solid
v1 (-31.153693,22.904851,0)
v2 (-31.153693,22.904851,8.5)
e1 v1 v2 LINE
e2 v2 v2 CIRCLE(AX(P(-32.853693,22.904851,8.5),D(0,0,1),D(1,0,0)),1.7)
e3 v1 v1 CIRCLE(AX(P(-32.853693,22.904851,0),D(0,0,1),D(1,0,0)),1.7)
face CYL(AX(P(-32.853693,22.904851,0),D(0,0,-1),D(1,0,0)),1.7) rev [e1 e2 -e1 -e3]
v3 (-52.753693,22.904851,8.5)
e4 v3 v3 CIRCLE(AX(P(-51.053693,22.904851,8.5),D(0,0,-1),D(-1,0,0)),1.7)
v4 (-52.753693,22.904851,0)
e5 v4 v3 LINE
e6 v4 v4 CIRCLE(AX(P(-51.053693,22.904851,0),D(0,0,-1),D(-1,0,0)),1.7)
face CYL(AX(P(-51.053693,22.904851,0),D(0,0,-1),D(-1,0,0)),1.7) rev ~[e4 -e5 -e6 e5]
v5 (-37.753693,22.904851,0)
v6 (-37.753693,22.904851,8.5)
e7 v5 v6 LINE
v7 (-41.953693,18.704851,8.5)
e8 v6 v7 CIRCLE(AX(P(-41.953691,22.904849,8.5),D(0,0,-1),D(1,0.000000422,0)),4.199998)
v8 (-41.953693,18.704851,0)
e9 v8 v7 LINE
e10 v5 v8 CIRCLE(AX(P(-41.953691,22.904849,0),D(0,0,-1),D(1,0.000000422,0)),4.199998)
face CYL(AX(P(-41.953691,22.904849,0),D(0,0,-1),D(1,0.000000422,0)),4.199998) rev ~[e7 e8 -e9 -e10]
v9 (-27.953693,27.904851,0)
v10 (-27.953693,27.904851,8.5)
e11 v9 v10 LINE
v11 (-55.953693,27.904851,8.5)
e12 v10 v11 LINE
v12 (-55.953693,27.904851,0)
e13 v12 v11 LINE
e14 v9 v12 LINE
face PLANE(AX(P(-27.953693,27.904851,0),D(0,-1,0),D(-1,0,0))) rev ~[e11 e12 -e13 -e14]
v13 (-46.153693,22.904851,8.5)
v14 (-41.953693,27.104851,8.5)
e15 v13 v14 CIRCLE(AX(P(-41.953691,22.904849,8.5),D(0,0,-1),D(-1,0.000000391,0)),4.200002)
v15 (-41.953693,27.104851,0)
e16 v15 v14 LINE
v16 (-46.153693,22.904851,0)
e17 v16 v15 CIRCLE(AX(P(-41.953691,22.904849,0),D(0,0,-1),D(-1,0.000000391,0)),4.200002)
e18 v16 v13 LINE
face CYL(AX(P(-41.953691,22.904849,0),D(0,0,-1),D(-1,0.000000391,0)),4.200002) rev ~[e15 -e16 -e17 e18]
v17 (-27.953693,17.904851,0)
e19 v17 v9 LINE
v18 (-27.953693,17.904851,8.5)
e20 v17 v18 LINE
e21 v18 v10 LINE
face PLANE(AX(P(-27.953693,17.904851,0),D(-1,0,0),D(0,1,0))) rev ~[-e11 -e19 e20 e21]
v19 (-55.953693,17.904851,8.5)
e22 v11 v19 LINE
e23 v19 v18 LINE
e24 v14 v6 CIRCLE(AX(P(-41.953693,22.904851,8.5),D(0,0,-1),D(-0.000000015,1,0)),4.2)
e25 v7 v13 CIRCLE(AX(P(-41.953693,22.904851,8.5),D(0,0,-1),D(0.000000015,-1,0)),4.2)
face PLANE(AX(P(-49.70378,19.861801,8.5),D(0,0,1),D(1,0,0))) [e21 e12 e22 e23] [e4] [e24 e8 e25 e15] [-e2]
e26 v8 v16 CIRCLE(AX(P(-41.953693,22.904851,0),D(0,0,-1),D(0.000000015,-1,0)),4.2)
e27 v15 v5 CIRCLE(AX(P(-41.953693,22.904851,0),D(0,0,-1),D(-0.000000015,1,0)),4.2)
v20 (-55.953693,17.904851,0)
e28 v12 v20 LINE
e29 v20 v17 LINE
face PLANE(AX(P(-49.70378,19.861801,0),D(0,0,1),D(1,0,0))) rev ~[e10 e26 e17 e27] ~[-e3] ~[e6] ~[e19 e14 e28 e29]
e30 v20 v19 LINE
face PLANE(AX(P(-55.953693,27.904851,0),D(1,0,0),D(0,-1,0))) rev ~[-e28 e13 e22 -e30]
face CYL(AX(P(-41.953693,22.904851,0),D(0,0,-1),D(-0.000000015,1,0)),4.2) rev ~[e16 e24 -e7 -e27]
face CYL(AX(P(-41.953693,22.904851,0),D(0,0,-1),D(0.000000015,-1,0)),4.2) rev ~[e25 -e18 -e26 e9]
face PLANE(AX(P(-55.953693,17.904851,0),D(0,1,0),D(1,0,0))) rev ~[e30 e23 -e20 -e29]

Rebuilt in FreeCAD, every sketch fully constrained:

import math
import FreeCAD as App
import Part
import Sketcher
from FreeCAD import Vector

doc = App.newDocument("Part")
body = doc.addObject("PartDesign::Body", "Body")

# Sketch on XY plane
sketch1 = body.newObject("Sketcher::SketchObject", "Sketch")
sketch1.AttachmentSupport = (doc.getObject("XY_Plane"), [""])
sketch1.MapMode = "FlatFace"
sketch1.addGeometry(Part.LineSegment(Vector(-56, 27.9, 0), Vector(-56, 17.9, 0)), False)
sketch1.addGeometry(Part.LineSegment(Vector(-56, 17.9, 0), Vector(-28, 17.9, 0)), False)
sketch1.addGeometry(Part.LineSegment(Vector(-28, 17.9, 0), Vector(-28, 27.9, 0)), False)
sketch1.addGeometry(Part.LineSegment(Vector(-28, 27.9, 0), Vector(-56, 27.9, 0)), False)
sketch1.addGeometry(Part.Circle(Vector(-51.1, 22.9, 0), Vector(0, 0, 1), 1.7), False)
sketch1.addGeometry(Part.ArcOfCircle(Part.Circle(Vector(-42, 22.9, 0), Vector(0, 0, 1), 4.2), math.radians(180), math.radians(270)), False)
sketch1.addGeometry(Part.ArcOfCircle(Part.Circle(Vector(-42, 22.9, 0), Vector(0, 0, 1), 4.2), math.radians(90), math.radians(180)), False)
sketch1.addGeometry(Part.ArcOfCircle(Part.Circle(Vector(-42, 22.9, 0), Vector(0, 0, 1), 4.2), math.radians(0), math.radians(90)), False)
sketch1.addGeometry(Part.ArcOfCircle(Part.Circle(Vector(-42, 22.9, 0), Vector(0, 0, 1), 4.2), math.radians(-90), math.radians(0)), False)
sketch1.addGeometry(Part.Circle(Vector(-32.9, 22.9, 0), Vector(0, 0, 1), 1.7), False)
sketch1.addConstraint(Sketcher.Constraint("Coincident", 0, 2, 1, 1))
sketch1.addConstraint(Sketcher.Constraint("Coincident", 1, 2, 2, 1))
sketch1.addConstraint(Sketcher.Constraint("Coincident", 2, 2, 3, 1))
sketch1.addConstraint(Sketcher.Constraint("Coincident", 3, 2, 0, 1))
sketch1.addConstraint(Sketcher.Constraint("Tangent", 5, 1, 6, 2))
sketch1.addConstraint(Sketcher.Constraint("Tangent", 6, 1, 7, 2))
sketch1.addConstraint(Sketcher.Constraint("Tangent", 7, 1, 8, 2))
sketch1.addConstraint(Sketcher.Constraint("Tangent", 8, 1, 5, 2))
sketch1.addConstraint(Sketcher.Constraint("Vertical", 0))
sketch1.addConstraint(Sketcher.Constraint("Horizontal", 1))
sketch1.addConstraint(Sketcher.Constraint("Vertical", 2))
sketch1.addConstraint(Sketcher.Constraint("Horizontal", 3))
sketch1.addConstraint(Sketcher.Constraint("Equal", 5, 6))
sketch1.addConstraint(Sketcher.Constraint("Equal", 4, 9))
sketch1.addConstraint(Sketcher.Constraint("Horizontal", 4, 3, 5, 3))
sketch1.addConstraint(Sketcher.Constraint("Horizontal", 8, 3, 9, 3))
sketch1.addConstraint(Sketcher.Constraint("Horizontal", 9, 3, 5, 1))
sketch1.addConstraint(Sketcher.Constraint("Horizontal", 5, 1, 7, 1))
sketch1.addConstraint(Sketcher.Constraint("Vertical", 8, 3, 6, 1))
sketch1.addConstraint(Sketcher.Constraint("Vertical", 6, 1, 8, 1))
sketch1.addConstraint(Sketcher.Constraint("Diameter", 4, 3.4))
sketch1.addConstraint(Sketcher.Constraint("Radius", 5, 4.2))
sketch1.addConstraint(Sketcher.Constraint("DistanceX", 1, 1, 1, 2, 28.0))
sketch1.addConstraint(Sketcher.Constraint("DistanceY", 0, 2, 0, 1, 10.0))
sketch1.addConstraint(Sketcher.Constraint("DistanceY", 0, 2, 4, 3, 5.0))
sketch1.addConstraint(Sketcher.Constraint("DistanceX", 0, 2, 5, 3, 14.0))
sketch1.addConstraint(Sketcher.Constraint("DistanceX", 4, 3, 5, 3, 9.1))
sketch1.addConstraint(Sketcher.Constraint("DistanceX", 8, 3, 9, 3, 9.099998))
sketch1.addConstraint(Sketcher.Constraint("DistanceY", -1, 1, 4, 3, 22.904851))
sketch1.addConstraint(Sketcher.Constraint("DistanceX", 6, 3, -1, 1, 41.953691))
pad1 = body.newObject("PartDesign::Pad", "Pad")
pad1.Profile = sketch1
pad1.Length = 8.5

doc.recompute()
